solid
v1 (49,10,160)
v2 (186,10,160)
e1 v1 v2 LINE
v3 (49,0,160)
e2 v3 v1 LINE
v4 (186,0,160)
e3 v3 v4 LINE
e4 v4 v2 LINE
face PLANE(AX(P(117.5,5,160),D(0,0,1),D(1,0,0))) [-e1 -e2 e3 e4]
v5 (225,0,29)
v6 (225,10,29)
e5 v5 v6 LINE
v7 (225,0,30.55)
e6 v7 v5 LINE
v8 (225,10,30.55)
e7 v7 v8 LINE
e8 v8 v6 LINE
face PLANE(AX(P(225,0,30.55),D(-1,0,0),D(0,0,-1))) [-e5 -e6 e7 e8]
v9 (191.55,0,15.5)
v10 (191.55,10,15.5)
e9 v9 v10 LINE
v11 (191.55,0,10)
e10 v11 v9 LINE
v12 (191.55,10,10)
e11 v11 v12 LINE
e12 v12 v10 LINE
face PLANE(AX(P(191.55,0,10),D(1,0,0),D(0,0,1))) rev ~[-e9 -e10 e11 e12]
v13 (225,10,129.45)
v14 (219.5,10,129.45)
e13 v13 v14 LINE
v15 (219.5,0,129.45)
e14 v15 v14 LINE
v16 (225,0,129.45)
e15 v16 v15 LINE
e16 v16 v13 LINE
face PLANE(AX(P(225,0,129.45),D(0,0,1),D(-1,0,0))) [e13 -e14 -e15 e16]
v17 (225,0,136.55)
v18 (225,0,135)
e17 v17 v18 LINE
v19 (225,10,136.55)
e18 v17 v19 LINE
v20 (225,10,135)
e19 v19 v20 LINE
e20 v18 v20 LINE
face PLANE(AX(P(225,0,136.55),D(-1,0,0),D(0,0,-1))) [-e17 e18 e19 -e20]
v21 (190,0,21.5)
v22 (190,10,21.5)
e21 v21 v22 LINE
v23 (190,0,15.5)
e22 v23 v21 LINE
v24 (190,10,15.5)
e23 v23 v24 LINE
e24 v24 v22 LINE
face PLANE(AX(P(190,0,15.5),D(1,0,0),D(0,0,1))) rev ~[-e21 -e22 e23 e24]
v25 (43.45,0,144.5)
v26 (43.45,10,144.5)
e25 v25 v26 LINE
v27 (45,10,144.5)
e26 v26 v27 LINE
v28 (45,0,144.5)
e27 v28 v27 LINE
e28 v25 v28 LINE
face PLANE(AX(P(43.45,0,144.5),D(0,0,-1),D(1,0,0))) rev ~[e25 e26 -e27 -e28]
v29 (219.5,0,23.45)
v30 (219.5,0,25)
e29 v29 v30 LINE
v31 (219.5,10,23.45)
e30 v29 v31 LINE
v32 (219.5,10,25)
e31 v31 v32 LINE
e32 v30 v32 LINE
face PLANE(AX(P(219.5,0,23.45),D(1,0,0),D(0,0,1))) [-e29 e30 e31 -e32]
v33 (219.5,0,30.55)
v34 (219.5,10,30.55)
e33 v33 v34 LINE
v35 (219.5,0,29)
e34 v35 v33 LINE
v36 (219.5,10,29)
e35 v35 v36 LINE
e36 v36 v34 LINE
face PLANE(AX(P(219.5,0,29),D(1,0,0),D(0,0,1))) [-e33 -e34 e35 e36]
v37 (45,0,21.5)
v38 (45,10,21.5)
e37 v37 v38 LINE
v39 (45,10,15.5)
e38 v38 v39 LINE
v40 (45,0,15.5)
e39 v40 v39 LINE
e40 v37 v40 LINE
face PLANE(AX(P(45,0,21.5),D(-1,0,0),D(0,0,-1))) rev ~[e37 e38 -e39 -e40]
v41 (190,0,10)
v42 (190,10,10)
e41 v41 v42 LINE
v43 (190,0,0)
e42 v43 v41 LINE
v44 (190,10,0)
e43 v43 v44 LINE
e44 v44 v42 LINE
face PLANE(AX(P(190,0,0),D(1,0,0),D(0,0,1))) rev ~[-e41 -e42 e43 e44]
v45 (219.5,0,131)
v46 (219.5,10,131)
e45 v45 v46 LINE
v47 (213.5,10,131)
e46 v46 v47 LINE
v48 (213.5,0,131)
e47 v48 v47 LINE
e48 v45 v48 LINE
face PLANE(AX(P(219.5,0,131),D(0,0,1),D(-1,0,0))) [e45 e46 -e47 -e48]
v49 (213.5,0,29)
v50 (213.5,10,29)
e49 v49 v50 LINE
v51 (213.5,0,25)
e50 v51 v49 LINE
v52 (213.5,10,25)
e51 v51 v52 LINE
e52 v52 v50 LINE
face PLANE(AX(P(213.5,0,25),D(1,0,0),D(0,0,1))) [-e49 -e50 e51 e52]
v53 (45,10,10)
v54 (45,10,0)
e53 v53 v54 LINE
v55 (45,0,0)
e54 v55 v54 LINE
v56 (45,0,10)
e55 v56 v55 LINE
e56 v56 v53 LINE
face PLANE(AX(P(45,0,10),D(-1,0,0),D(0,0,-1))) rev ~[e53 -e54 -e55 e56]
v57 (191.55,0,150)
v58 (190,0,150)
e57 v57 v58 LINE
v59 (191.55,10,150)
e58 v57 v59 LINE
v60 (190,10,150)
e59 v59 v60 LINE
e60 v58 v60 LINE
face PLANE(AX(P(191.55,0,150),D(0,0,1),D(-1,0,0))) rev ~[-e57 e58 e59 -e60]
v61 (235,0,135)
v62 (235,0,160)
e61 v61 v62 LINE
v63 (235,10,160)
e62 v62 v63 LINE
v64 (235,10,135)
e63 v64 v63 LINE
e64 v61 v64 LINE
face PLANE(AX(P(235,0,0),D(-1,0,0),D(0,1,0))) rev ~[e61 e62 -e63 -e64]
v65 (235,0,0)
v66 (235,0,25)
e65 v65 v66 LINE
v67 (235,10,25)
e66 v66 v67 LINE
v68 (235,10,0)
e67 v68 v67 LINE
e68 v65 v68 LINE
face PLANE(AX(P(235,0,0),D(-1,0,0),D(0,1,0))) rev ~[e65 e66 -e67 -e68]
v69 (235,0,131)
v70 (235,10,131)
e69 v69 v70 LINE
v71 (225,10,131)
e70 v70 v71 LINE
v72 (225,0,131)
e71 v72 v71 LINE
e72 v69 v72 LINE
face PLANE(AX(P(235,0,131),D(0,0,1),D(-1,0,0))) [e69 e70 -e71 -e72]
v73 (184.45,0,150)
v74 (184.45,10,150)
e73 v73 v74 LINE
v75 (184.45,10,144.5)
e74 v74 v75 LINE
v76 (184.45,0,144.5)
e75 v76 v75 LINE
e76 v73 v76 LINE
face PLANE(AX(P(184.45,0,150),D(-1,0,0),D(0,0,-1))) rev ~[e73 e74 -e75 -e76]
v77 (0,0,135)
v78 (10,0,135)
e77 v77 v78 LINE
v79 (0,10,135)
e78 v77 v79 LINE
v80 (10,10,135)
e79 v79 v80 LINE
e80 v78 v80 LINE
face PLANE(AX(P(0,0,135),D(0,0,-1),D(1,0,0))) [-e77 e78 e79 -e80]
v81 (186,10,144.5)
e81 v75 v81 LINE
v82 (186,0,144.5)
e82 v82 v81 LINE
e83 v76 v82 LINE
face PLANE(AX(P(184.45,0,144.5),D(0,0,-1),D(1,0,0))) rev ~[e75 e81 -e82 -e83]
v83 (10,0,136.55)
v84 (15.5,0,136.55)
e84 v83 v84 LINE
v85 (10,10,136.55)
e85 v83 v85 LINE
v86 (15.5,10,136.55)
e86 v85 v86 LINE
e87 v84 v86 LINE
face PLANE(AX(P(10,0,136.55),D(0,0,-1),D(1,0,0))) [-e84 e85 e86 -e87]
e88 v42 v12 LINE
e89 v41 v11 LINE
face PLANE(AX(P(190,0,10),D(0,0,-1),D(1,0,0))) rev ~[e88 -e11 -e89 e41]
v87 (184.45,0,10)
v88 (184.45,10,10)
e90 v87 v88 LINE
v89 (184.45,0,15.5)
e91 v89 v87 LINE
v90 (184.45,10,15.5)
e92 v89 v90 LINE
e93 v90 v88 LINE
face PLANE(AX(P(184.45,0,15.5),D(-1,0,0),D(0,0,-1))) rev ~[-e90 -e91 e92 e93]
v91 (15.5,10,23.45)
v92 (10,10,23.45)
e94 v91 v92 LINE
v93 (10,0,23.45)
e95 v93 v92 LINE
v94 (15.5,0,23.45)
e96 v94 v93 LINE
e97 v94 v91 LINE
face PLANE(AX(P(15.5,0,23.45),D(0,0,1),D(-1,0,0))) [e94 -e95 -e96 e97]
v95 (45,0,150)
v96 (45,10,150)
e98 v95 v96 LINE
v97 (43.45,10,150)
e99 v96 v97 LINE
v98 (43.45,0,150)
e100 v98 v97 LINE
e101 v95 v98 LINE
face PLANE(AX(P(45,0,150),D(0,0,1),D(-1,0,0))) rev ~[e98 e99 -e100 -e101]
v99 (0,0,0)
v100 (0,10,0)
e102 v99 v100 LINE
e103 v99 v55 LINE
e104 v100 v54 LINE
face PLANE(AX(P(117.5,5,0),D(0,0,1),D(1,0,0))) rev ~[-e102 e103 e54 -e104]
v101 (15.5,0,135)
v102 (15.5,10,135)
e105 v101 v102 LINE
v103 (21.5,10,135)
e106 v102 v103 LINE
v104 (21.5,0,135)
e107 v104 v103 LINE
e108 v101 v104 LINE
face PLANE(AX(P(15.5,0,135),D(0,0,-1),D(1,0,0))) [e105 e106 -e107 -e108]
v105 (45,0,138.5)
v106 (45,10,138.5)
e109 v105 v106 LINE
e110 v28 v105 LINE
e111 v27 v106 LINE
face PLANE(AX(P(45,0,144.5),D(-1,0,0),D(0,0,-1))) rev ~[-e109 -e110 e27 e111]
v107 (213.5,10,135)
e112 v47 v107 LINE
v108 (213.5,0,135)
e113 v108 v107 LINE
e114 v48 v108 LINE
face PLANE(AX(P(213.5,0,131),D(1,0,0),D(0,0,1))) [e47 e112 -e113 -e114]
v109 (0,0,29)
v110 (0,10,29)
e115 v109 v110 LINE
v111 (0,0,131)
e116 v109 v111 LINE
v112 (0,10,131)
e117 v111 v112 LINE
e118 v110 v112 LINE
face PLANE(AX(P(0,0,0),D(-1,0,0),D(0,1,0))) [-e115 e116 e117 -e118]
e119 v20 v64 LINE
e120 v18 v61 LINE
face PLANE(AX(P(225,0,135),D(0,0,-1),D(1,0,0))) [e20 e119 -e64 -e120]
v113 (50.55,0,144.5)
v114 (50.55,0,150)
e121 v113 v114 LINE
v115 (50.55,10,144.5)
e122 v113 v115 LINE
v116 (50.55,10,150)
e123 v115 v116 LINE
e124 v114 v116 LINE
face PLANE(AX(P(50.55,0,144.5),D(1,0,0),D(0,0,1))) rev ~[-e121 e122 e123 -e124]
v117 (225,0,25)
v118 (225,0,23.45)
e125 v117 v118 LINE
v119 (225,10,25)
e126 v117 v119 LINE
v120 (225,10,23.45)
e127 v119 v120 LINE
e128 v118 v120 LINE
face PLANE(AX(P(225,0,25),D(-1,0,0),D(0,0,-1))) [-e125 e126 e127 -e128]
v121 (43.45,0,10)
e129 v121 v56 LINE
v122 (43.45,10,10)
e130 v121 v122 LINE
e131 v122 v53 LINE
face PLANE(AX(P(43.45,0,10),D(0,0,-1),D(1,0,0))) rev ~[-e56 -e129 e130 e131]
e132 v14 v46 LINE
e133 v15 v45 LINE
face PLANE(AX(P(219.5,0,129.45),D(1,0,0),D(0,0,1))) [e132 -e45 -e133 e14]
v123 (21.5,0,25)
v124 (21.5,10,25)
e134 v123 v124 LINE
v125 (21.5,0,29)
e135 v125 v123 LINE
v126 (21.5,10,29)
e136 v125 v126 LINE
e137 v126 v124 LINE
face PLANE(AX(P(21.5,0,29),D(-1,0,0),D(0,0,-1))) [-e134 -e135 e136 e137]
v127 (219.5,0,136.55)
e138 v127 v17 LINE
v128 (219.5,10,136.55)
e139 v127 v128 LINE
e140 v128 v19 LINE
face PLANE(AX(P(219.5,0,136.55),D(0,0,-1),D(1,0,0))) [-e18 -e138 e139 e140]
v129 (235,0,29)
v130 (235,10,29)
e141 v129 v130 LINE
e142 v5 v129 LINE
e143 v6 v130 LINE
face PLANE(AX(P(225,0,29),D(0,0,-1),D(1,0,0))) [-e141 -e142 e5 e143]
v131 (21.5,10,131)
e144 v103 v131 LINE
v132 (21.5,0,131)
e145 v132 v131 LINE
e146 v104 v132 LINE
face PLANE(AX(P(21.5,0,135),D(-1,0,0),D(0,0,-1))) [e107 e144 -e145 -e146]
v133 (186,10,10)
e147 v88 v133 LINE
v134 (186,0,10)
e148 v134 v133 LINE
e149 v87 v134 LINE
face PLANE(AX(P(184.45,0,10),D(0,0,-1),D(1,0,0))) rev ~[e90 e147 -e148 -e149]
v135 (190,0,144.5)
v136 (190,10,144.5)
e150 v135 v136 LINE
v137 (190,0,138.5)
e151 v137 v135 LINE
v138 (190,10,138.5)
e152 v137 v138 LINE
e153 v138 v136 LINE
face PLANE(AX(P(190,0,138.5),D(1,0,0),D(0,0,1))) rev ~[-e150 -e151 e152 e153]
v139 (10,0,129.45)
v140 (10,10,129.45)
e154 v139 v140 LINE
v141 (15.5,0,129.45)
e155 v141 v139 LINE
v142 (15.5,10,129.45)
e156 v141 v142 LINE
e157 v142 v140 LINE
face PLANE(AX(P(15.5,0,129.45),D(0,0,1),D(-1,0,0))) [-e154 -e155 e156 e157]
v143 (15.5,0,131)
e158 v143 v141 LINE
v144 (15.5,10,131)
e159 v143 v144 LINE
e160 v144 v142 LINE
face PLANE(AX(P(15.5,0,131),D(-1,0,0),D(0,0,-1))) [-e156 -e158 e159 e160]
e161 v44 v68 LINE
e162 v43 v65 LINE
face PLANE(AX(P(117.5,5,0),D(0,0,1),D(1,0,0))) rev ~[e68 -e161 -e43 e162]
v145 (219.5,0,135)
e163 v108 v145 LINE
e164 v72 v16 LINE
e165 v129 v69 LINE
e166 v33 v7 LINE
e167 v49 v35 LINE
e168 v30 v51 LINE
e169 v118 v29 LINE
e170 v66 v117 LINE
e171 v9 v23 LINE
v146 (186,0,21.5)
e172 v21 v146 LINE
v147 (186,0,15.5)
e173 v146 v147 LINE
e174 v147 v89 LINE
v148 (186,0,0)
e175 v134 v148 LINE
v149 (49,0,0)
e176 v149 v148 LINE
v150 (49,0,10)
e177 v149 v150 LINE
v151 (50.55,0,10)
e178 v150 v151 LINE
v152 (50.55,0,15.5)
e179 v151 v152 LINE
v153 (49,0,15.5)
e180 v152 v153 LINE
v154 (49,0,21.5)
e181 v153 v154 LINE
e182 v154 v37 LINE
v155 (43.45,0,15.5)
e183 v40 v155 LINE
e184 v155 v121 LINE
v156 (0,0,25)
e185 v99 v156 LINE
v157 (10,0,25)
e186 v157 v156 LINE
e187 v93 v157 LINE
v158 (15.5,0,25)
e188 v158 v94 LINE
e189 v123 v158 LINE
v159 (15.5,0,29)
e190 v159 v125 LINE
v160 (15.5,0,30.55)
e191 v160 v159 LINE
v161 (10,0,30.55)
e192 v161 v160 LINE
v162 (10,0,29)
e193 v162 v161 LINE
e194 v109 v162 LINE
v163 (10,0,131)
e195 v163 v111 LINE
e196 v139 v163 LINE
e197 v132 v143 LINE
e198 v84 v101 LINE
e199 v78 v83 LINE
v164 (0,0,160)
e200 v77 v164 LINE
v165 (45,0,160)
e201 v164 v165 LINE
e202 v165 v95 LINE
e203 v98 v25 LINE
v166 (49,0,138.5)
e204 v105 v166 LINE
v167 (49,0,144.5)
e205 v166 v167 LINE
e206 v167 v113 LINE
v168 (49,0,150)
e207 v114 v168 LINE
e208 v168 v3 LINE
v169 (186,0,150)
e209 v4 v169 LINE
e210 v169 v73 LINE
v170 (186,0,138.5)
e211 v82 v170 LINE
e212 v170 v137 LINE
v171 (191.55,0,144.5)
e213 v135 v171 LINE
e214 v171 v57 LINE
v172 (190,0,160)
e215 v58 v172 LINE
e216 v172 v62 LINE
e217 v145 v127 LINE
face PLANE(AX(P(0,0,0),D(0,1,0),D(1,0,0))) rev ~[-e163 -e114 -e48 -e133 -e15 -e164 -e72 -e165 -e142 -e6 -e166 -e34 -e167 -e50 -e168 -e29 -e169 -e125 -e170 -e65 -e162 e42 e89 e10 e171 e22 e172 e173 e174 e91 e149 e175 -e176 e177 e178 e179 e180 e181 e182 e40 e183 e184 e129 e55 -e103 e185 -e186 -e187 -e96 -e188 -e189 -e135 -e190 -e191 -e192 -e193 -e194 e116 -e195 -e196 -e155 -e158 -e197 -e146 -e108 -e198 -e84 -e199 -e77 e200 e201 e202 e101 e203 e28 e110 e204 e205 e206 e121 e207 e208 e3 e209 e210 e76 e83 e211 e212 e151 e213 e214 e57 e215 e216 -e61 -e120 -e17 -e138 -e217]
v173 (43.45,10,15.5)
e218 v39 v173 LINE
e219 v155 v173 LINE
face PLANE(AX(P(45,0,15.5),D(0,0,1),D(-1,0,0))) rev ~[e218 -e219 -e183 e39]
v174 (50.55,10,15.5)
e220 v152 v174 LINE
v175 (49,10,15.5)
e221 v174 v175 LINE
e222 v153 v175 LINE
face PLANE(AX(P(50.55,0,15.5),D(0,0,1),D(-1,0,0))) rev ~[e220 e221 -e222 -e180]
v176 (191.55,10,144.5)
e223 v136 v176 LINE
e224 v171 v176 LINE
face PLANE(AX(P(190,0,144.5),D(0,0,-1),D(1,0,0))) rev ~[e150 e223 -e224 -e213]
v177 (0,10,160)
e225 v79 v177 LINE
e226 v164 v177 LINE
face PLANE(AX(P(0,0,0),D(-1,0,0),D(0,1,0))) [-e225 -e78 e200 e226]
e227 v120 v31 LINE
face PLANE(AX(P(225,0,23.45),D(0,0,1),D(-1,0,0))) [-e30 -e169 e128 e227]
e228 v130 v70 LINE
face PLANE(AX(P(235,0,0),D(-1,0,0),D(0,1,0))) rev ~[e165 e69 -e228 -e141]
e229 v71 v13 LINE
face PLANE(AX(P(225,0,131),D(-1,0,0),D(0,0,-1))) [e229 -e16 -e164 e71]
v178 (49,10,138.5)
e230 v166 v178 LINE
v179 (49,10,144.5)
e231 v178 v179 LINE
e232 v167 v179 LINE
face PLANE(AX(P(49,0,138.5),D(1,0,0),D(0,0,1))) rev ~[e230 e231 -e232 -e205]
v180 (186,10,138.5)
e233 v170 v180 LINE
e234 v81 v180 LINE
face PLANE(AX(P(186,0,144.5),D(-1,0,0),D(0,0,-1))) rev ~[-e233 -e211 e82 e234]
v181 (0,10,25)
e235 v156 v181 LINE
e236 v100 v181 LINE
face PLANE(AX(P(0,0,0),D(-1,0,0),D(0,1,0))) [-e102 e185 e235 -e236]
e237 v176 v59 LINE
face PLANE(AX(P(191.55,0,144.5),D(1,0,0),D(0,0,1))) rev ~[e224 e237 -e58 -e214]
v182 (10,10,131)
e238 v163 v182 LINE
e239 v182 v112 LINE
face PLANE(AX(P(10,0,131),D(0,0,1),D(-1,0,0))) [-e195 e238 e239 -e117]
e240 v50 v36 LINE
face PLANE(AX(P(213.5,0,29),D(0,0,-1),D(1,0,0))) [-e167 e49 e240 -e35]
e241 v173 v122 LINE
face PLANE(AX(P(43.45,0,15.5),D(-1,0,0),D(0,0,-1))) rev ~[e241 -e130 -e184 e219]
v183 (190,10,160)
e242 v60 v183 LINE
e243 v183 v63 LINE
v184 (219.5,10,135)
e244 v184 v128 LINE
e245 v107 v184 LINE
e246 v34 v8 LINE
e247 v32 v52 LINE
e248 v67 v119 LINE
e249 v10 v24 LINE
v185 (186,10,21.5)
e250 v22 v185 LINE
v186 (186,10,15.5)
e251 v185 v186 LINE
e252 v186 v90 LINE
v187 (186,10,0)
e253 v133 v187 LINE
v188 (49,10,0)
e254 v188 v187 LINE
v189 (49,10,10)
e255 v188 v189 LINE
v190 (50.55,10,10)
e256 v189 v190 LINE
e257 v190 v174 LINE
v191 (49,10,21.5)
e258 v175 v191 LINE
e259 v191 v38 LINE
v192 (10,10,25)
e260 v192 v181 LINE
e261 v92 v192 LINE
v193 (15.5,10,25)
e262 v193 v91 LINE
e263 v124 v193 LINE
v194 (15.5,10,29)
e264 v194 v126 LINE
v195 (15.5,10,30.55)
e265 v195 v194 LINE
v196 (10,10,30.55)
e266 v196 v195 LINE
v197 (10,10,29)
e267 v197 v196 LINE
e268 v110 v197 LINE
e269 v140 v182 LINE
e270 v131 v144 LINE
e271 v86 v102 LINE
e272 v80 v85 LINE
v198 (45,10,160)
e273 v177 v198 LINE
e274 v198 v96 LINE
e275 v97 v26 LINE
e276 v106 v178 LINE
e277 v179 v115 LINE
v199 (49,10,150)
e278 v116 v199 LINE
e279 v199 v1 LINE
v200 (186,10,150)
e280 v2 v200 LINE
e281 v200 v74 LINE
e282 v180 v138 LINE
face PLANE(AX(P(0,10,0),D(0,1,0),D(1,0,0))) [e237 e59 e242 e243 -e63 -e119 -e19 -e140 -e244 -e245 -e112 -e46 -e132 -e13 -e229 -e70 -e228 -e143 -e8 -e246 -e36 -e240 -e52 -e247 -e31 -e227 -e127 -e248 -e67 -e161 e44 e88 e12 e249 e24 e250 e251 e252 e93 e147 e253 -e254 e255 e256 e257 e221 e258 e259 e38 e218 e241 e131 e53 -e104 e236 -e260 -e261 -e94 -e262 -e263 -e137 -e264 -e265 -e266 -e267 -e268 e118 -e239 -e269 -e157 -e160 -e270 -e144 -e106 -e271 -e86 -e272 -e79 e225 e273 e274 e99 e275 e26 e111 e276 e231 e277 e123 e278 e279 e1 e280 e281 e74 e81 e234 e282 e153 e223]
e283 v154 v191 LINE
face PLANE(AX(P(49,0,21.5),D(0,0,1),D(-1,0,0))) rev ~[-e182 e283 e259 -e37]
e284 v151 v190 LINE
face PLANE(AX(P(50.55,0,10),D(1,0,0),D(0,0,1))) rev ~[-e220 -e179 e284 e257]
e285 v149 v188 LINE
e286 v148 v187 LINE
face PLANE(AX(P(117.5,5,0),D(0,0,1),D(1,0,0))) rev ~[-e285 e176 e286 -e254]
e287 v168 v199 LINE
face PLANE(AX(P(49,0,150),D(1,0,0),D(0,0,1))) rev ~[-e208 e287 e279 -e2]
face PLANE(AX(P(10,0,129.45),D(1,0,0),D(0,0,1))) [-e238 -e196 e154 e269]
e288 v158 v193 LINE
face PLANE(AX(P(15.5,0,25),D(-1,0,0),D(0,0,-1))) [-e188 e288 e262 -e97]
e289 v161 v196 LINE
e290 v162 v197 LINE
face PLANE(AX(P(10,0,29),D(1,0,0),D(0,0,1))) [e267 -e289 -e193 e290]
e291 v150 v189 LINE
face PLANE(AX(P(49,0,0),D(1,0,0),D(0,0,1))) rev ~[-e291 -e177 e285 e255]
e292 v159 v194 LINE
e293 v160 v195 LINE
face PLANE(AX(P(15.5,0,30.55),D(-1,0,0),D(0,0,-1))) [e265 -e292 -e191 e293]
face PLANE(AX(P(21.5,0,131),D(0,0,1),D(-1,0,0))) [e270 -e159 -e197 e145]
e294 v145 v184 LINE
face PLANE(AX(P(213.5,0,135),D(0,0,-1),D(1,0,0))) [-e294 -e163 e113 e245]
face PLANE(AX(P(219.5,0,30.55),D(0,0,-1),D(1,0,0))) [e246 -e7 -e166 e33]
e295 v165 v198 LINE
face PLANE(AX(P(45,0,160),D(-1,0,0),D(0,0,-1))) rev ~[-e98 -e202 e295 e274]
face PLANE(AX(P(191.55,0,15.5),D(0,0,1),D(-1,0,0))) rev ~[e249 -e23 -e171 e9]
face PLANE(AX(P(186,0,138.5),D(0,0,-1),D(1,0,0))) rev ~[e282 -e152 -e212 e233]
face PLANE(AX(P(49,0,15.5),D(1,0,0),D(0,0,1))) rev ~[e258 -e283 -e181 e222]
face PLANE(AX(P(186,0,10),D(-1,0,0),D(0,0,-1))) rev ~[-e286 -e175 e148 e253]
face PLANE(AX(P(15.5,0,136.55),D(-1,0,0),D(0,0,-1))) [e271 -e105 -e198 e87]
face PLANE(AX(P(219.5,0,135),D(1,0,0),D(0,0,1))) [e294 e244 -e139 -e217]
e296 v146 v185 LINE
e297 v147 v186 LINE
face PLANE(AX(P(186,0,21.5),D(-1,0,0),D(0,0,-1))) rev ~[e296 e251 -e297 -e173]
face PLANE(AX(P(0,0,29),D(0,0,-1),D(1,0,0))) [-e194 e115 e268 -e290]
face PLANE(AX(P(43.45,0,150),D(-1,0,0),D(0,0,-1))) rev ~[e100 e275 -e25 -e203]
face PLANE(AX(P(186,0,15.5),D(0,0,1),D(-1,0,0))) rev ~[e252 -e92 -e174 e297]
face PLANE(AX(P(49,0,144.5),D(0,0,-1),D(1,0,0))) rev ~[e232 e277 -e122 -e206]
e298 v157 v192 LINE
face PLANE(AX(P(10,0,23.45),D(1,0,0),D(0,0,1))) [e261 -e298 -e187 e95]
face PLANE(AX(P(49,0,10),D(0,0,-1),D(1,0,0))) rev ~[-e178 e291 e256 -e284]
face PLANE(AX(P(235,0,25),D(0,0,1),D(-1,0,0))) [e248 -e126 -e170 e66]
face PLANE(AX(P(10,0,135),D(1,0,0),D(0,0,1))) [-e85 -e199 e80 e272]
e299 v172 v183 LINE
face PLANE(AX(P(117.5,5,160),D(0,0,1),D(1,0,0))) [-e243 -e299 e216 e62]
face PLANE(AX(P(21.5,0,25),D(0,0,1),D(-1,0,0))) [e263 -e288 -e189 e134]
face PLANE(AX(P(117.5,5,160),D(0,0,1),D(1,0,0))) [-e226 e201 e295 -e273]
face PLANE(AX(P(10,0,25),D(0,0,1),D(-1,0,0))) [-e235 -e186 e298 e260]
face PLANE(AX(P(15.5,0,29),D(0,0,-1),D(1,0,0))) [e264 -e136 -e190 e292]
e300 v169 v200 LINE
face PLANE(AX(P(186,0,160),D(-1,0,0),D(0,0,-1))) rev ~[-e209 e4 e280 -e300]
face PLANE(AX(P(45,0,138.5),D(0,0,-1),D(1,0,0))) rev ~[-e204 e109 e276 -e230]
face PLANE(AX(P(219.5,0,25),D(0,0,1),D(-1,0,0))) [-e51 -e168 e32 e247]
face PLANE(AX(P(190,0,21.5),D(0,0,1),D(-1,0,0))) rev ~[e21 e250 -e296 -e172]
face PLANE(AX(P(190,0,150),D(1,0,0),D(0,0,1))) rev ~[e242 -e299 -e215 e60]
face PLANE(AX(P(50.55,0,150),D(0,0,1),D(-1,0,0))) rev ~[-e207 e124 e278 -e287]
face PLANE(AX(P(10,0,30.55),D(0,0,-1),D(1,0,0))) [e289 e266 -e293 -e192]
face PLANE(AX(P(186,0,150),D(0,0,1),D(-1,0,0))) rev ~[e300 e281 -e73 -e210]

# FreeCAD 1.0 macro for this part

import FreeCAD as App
import Part
import Sketcher

doc = App.newDocument("Part")
body = doc.addObject("PartDesign::Body", "Body")

sketch1 = body.newObject("Sketcher::SketchObject", "Sketch")
sketch1.AttachmentSupport = (doc.getObject("XY_Plane"), [""])
sketch1.MapMode = "FlatFace"
sketch1.addGeometry(Part.LineSegment(App.Vector(0, 10, 0), App.Vector(0, 0, 0)), False)
sketch1.addGeometry(Part.LineSegment(App.Vector(0, 0, 0), App.Vector(235, 0, 0)), False)
sketch1.addGeometry(Part.LineSegment(App.Vector(235, 0, 0), App.Vector(235, 10, 0)), False)
sketch1.addGeometry(Part.LineSegment(App.Vector(235, 10, 0), App.Vector(0, 10, 0)), False)
sketch1.addConstraint(Sketcher.Constraint("Coincident", 0, 2, 1, 1))
sketch1.addConstraint(Sketcher.Constraint("Coincident", 1, 2, 2, 1))
sketch1.addConstraint(Sketcher.Constraint("Coincident", 2, 2, 3, 1))
sketch1.addConstraint(Sketcher.Constraint("Coincident", 3, 2, 0, 1))
sketch1.addConstraint(Sketcher.Constraint("Vertical", 0))
sketch1.addConstraint(Sketcher.Constraint("Horizontal", 1))
sketch1.addConstraint(Sketcher.Constraint("Vertical", 2))
sketch1.addConstraint(Sketcher.Constraint("Horizontal", 3))
sketch1.addConstraint(Sketcher.Constraint("Coincident", 0, 2, -1, 1))
sketch1.addConstraint(Sketcher.Constraint("DistanceX", 1, 1, 1, 2, 235.0))
sketch1.addConstraint(Sketcher.Constraint("DistanceY", 0, 2, 0, 1, 10.0))
pad1 = body.newObject("PartDesign::Pad", "Pad")
pad1.Profile = sketch1
pad1.Length = 160

sketch2 = body.newObject("Sketcher::SketchObject", "Sketch001")
sketch2.AttachmentSupport = (doc.getObject("XZ_Plane"), [""])
sketch2.MapMode = "FlatFace"
sketch2.addGeometry(Part.LineSegment(App.Vector(10, 135, 0), App.Vector(0, 135, 0)), False)
sketch2.addGeometry(Part.LineSegment(App.Vector(0, 135, 0), App.Vector(0, 131, 0)), False)
sketch2.addGeometry(Part.LineSegment(App.Vector(0, 131, 0), App.Vector(10, 131, 0)), False)
sketch2.addGeometry(Part.LineSegment(App.Vector(10, 131, 0), App.Vector(10, 129.45, 0)), False)
sketch2.addGeometry(Part.LineSegment(App.Vector(10, 129.45, 0), App.Vector(15.5, 129.45, 0)), False)
sketch2.addGeometry(Part.LineSegment(App.Vector(15.5, 129.45, 0), App.Vector(15.5, 131, 0)), False)
sketch2.addGeometry(Part.LineSegment(App.Vector(15.5, 131, 0), App.Vector(21.5, 131, 0)), False)
sketch2.addGeometry(Part.LineSegment(App.Vector(21.5, 131, 0), App.Vector(21.5, 135, 0)), False)
sketch2.addGeometry(Part.LineSegment(App.Vector(21.5, 135, 0), App.Vector(15.5, 135, 0)), False)
sketch2.addGeometry(Part.LineSegment(App.Vector(15.5, 135, 0), App.Vector(15.5, 136.55, 0)), False)
sketch2.addGeometry(Part.LineSegment(App.Vector(15.5, 136.55, 0), App.Vector(10, 136.55, 0)), False)
sketch2.addGeometry(Part.LineSegment(App.Vector(10, 136.55, 0), App.Vector(10, 135, 0)), False)
sketch2.addGeometry(Part.LineSegment(App.Vector(10, 29, 0), App.Vector(0, 29, 0)), False)
sketch2.addGeometry(Part.LineSegment(App.Vector(0, 29, 0), App.Vector(0, 25, 0)), False)
sketch2.addGeometry(Part.LineSegment(App.Vector(0, 25, 0), App.Vector(10, 25, 0)), False)
sketch2.addGeometry(Part.LineSegment(App.Vector(10, 25, 0), App.Vector(10, 23.45, 0)), False)
sketch2.addGeometry(Part.LineSegment(App.Vector(10, 23.45, 0), App.Vector(15.5, 23.45, 0)), False)
sketch2.addGeometry(Part.LineSegment(App.Vector(15.5, 23.45, 0), App.Vector(15.5, 25, 0)), False)
sketch2.addGeometry(Part.LineSegment(App.Vector(15.5, 25, 0), App.Vector(21.5, 25, 0)), False)
sketch2.addGeometry(Part.LineSegment(App.Vector(21.5, 25, 0), App.Vector(21.5, 29, 0)), False)
sketch2.addGeometry(Part.LineSegment(App.Vector(21.5, 29, 0), App.Vector(15.5, 29, 0)), False)
sketch2.addGeometry(Part.LineSegment(App.Vector(15.5, 29, 0), App.Vector(15.5, 30.55, 0)), False)
sketch2.addGeometry(Part.LineSegment(App.Vector(15.5, 30.55, 0), App.Vector(10, 30.55, 0)), False)
sketch2.addGeometry(Part.LineSegment(App.Vector(10, 30.55, 0), App.Vector(10, 29, 0)), False)
sketch2.addGeometry(Part.LineSegment(App.Vector(225, 25, 0), App.Vector(235, 25, 0)), False)
sketch2.addGeometry(Part.LineSegment(App.Vector(235, 25, 0), App.Vector(235, 29, 0)), False)
sketch2.addGeometry(Part.LineSegment(App.Vector(235, 29, 0), App.Vector(225, 29, 0)), False)
sketch2.addGeometry(Part.LineSegment(App.Vector(225, 29, 0), App.Vector(225, 30.55, 0)), False)
sketch2.addGeometry(Part.LineSegment(App.Vector(225, 30.55, 0), App.Vector(219.5, 30.55, 0)), False)
sketch2.addGeometry(Part.LineSegment(App.Vector(219.5, 30.55, 0), App.Vector(219.5, 29, 0)), False)
sketch2.addGeometry(Part.LineSegment(App.Vector(219.5, 29, 0), App.Vector(213.5, 29, 0)), False)
sketch2.addGeometry(Part.LineSegment(App.Vector(213.5, 29, 0), App.Vector(213.5, 25, 0)), False)
sketch2.addGeometry(Part.LineSegment(App.Vector(213.5, 25, 0), App.Vector(219.5, 25, 0)), False)
sketch2.addGeometry(Part.LineSegment(App.Vector(219.5, 25, 0), App.Vector(219.5, 23.45, 0)), False)
sketch2.addGeometry(Part.LineSegment(App.Vector(219.5, 23.45, 0), App.Vector(225, 23.45, 0)), False)
sketch2.addGeometry(Part.LineSegment(App.Vector(225, 23.45, 0), App.Vector(225, 25, 0)), False)
sketch2.addGeometry(Part.LineSegment(App.Vector(225, 131, 0), App.Vector(235, 131, 0)), False)
sketch2.addGeometry(Part.LineSegment(App.Vector(235, 131, 0), App.Vector(235, 135, 0)), False)
sketch2.addGeometry(Part.LineSegment(App.Vector(235, 135, 0), App.Vector(225, 135, 0)), False)
sketch2.addGeometry(Part.LineSegment(App.Vector(225, 135, 0), App.Vector(225, 136.55, 0)), False)
sketch2.addGeometry(Part.LineSegment(App.Vector(225, 136.55, 0), App.Vector(219.5, 136.55, 0)), False)
sketch2.addGeometry(Part.LineSegment(App.Vector(219.5, 136.55, 0), App.Vector(219.5, 135, 0)), False)
sketch2.addGeometry(Part.LineSegment(App.Vector(219.5, 135, 0), App.Vector(213.5, 135, 0)), False)
sketch2.addGeometry(Part.LineSegment(App.Vector(213.5, 135, 0), App.Vector(213.5, 131, 0)), False)
sketch2.addGeometry(Part.LineSegment(App.Vector(213.5, 131, 0), App.Vector(219.5, 131, 0)), False)
sketch2.addGeometry(Part.LineSegment(App.Vector(219.5, 131, 0), App.Vector(219.5, 129.45, 0)), False)
sketch2.addGeometry(Part.LineSegment(App.Vector(219.5, 129.45, 0), App.Vector(225, 129.45, 0)), False)
sketch2.addGeometry(Part.LineSegment(App.Vector(225, 129.45, 0), App.Vector(225, 131, 0)), False)
sketch2.addConstraint(Sketcher.Constraint("Coincident", 0, 2, 1, 1))
sketch2.addConstraint(Sketcher.Constraint("Coincident", 1, 2, 2, 1))
sketch2.addConstraint(Sketcher.Constraint("Coincident", 2, 2, 3, 1))
sketch2.addConstraint(Sketcher.Constraint("Coincident", 3, 2, 4, 1))
sketch2.addConstraint(Sketcher.Constraint("Coincident", 4, 2, 5, 1))
sketch2.addConstraint(Sketcher.Constraint("Coincident", 5, 2, 6, 1))
sketch2.addConstraint(Sketcher.Constraint("Coincident", 6, 2, 7, 1))
sketch2.addConstraint(Sketcher.Constraint("Coincident", 7, 2, 8, 1))
sketch2.addConstraint(Sketcher.Constraint("Coincident", 8, 2, 9, 1))
sketch2.addConstraint(Sketcher.Constraint("Coincident", 9, 2, 10, 1))
sketch2.addConstraint(Sketcher.Constraint("Coincident", 10, 2, 11, 1))
sketch2.addConstraint(Sketcher.Constraint("Coincident", 11, 2, 0, 1))
sketch2.addConstraint(Sketcher.Constraint("Coincident", 12, 2, 13, 1))
sketch2.addConstraint(Sketcher.Constraint("Coincident", 13, 2, 14, 1))
sketch2.addConstraint(Sketcher.Constraint("Coincident", 14, 2, 15, 1))
sketch2.addConstraint(Sketcher.Constraint("Coincident", 15, 2, 16, 1))
sketch2.addConstraint(Sketcher.Constraint("Coincident", 16, 2, 17, 1))
sketch2.addConstraint(Sketcher.Constraint("Coincident", 17, 2, 18, 1))
sketch2.addConstraint(Sketcher.Constraint("Coincident", 18, 2, 19, 1))
sketch2.addConstraint(Sketcher.Constraint("Coincident", 19, 2, 20, 1))
sketch2.addConstraint(Sketcher.Constraint("Coincident", 20, 2, 21, 1))
sketch2.addConstraint(Sketcher.Constraint("Coincident", 21, 2, 22, 1))
sketch2.addConstraint(Sketcher.Constraint("Coincident", 22, 2, 23, 1))
sketch2.addConstraint(Sketcher.Constraint("Coincident", 23, 2, 12, 1))
sketch2.addConstraint(Sketcher.Constraint("Coincident", 24, 2, 25, 1))
sketch2.addConstraint(Sketcher.Constraint("Coincident", 25, 2, 26, 1))
sketch2.addConstraint(Sketcher.Constraint("Coincident", 26, 2, 27, 1))
sketch2.addConstraint(Sketcher.Constraint("Coincident", 27, 2, 28, 1))
sketch2.addConstraint(Sketcher.Constraint("Coincident", 28, 2, 29, 1))
sketch2.addConstraint(Sketcher.Constraint("Coincident", 29, 2, 30, 1))
sketch2.addConstraint(Sketcher.Constraint("Coincident", 30, 2, 31, 1))
sketch2.addConstraint(Sketcher.Constraint("Coincident", 31, 2, 32, 1))
sketch2.addConstraint(Sketcher.Constraint("Coincident", 32, 2, 33, 1))
sketch2.addConstraint(Sketcher.Constraint("Coincident", 33, 2, 34, 1))
sketch2.addConstraint(Sketcher.Constraint("Coincident", 34, 2, 35, 1))
sketch2.addConstraint(Sketcher.Constraint("Coincident", 35, 2, 24, 1))
sketch2.addConstraint(Sketcher.Constraint("Coincident", 36, 2, 37, 1))
sketch2.addConstraint(Sketcher.Constraint("Coincident", 37, 2, 38, 1))
sketch2.addConstraint(Sketcher.Constraint("Coincident", 38, 2, 39, 1))
sketch2.addConstraint(Sketcher.Constraint("Coincident", 39, 2, 40, 1))
sketch2.addConstraint(Sketcher.Constraint("Coincident", 40, 2, 41, 1))
sketch2.addConstraint(Sketcher.Constraint("Coincident", 41, 2, 42, 1))
sketch2.addConstraint(Sketcher.Constraint("Coincident", 42, 2, 43, 1))
sketch2.addConstraint(Sketcher.Constraint("Coincident", 43, 2, 44, 1))
sketch2.addConstraint(Sketcher.Constraint("Coincident", 44, 2, 45, 1))
sketch2.addConstraint(Sketcher.Constraint("Coincident", 45, 2, 46, 1))
sketch2.addConstraint(Sketcher.Constraint("Coincident", 46, 2, 47, 1))
sketch2.addConstraint(Sketcher.Constraint("Coincident", 47, 2, 36, 1))
sketch2.addConstraint(Sketcher.Constraint("Horizontal", 0))
sketch2.addConstraint(Sketcher.Constraint("Vertical", 1))
sketch2.addConstraint(Sketcher.Constraint("Horizontal", 2))
sketch2.addConstraint(Sketcher.Constraint("Vertical", 3))
sketch2.addConstraint(Sketcher.Constraint("Horizontal", 4))
sketch2.addConstraint(Sketcher.Constraint("Vertical", 5))
sketch2.addConstraint(Sketcher.Constraint("Horizontal", 6))
sketch2.addConstraint(Sketcher.Constraint("Vertical", 7))
sketch2.addConstraint(Sketcher.Constraint("Horizontal", 8))
sketch2.addConstraint(Sketcher.Constraint("Vertical", 9))
sketch2.addConstraint(Sketcher.Constraint("Horizontal", 10))
sketch2.addConstraint(Sketcher.Constraint("Vertical", 11))
sketch2.addConstraint(Sketcher.Constraint("Horizontal", 12))
sketch2.addConstraint(Sketcher.Constraint("Vertical", 13))
sketch2.addConstraint(Sketcher.Constraint("Horizontal", 14))
sketch2.addConstraint(Sketcher.Constraint("Vertical", 15))
sketch2.addConstraint(Sketcher.Constraint("Horizontal", 16))
sketch2.addConstraint(Sketcher.Constraint("Vertical", 17))
sketch2.addConstraint(Sketcher.Constraint("Horizontal", 18))
sketch2.addConstraint(Sketcher.Constraint("Vertical", 19))
sketch2.addConstraint(Sketcher.Constraint("Horizontal", 20))
sketch2.addConstraint(Sketcher.Constraint("Vertical", 21))
sketch2.addConstraint(Sketcher.Constraint("Horizontal", 22))
sketch2.addConstraint(Sketcher.Constraint("Vertical", 23))
sketch2.addConstraint(Sketcher.Constraint("Horizontal", 24))
sketch2.addConstraint(Sketcher.Constraint("Vertical", 25))
sketch2.addConstraint(Sketcher.Constraint("Horizontal", 26))
sketch2.addConstraint(Sketcher.Constraint("Vertical", 27))
sketch2.addConstraint(Sketcher.Constraint("Horizontal", 28))
sketch2.addConstraint(Sketcher.Constraint("Vertical", 29))
sketch2.addConstraint(Sketcher.Constraint("Horizontal", 30))
sketch2.addConstraint(Sketcher.Constraint("Vertical", 31))
sketch2.addConstraint(Sketcher.Constraint("Horizontal", 32))
sketch2.addConstraint(Sketcher.Constraint("Vertical", 33))
sketch2.addConstraint(Sketcher.Constraint("Horizontal", 34))
sketch2.addConstraint(Sketcher.Constraint("Vertical", 35))
sketch2.addConstraint(Sketcher.Constraint("Horizontal", 36))
sketch2.addConstraint(Sketcher.Constraint("Vertical", 37))
sketch2.addConstraint(Sketcher.Constraint("Horizontal", 38))
sketch2.addConstraint(Sketcher.Constraint("Vertical", 39))
sketch2.addConstraint(Sketcher.Constraint("Horizontal", 40))
sketch2.addConstraint(Sketcher.Constraint("Vertical", 41))
sketch2.addConstraint(Sketcher.Constraint("Horizontal", 42))
sketch2.addConstraint(Sketcher.Constraint("Vertical", 43))
sketch2.addConstraint(Sketcher.Constraint("Horizontal", 44))
sketch2.addConstraint(Sketcher.Constraint("Vertical", 45))
sketch2.addConstraint(Sketcher.Constraint("Horizontal", 46))
sketch2.addConstraint(Sketcher.Constraint("Vertical", 47))
sketch2.addConstraint(Sketcher.Constraint("PointOnObject", 0, 2, -2))
sketch2.addConstraint(Sketcher.Constraint("PointOnObject", 12, 2, -2))
sketch2.addConstraint(Sketcher.Constraint("Horizontal", 2, 2, 5, 2))
sketch2.addConstraint(Sketcher.Constraint("Horizontal", 0, 2, 7, 2))
sketch2.addConstraint(Sketcher.Constraint("Horizontal", 14, 2, 17, 2))
sketch2.addConstraint(Sketcher.Constraint("Horizontal", 12, 2, 19, 2))
sketch2.addConstraint(Sketcher.Constraint("Horizontal", 18, 2, 24, 2))
sketch2.addConstraint(Sketcher.Constraint("Horizontal", 23, 2, 25, 2))
sketch2.addConstraint(Sketcher.Constraint("Horizontal", 22, 2, 27, 2))
sketch2.addConstraint(Sketcher.Constraint("Horizontal", 26, 2, 29, 2))
sketch2.addConstraint(Sketcher.Constraint("Horizontal", 24, 2, 31, 2))
sketch2.addConstraint(Sketcher.Constraint("Horizontal", 16, 2, 33, 2))
sketch2.addConstraint(Sketcher.Constraint("Horizontal", 6, 2, 36, 2))
sketch2.addConstraint(Sketcher.Constraint("Horizontal", 11, 2, 37, 2))
sketch2.addConstraint(Sketcher.Constraint("Horizontal", 10, 2, 39, 2))
sketch2.addConstraint(Sketcher.Constraint("Horizontal", 38, 2, 41, 2))
sketch2.addConstraint(Sketcher.Constraint("Horizontal", 36, 2, 43, 2))
sketch2.addConstraint(Sketcher.Constraint("Horizontal", 4, 2, 45, 2))
sketch2.addConstraint(Sketcher.Constraint("Vertical", 5, 2, 8, 2))
sketch2.addConstraint(Sketcher.Constraint("Vertical", 3, 2, 10, 2))
sketch2.addConstraint(Sketcher.Constraint("Vertical", 11, 2, 14, 2))
sketch2.addConstraint(Sketcher.Constraint("Vertical", 9, 2, 16, 2))
sketch2.addConstraint(Sketcher.Constraint("Vertical", 7, 2, 18, 2))
sketch2.addConstraint(Sketcher.Constraint("Vertical", 17, 2, 20, 2))
sketch2.addConstraint(Sketcher.Constraint("Vertical", 15, 2, 22, 2))
sketch2.addConstraint(Sketcher.Constraint("Vertical", 29, 2, 32, 2))
sketch2.addConstraint(Sketcher.Constraint("Vertical", 27, 2, 34, 2))
sketch2.addConstraint(Sketcher.Constraint("Vertical", 25, 2, 36, 2))
sketch2.addConstraint(Sketcher.Constraint("Vertical", 35, 2, 38, 2))
sketch2.addConstraint(Sketcher.Constraint("Vertical", 33, 2, 40, 2))
sketch2.addConstraint(Sketcher.Constraint("Vertical", 31, 2, 42, 2))
sketch2.addConstraint(Sketcher.Constraint("Vertical", 41, 2, 44, 2))
sketch2.addConstraint(Sketcher.Constraint("Vertical", 39, 2, 46, 2))
sketch2.addConstraint(Sketcher.Constraint("Equal", 14, 24))
sketch2.addConstraint(Sketcher.Constraint("Equal", 22, 28))
sketch2.addConstraint(Sketcher.Constraint("Equal", 20, 30))
sketch2.addConstraint(Sketcher.Constraint("Equal", 5, 9))
sketch2.addConstraint(Sketcher.Constraint("Equal", 7, 13))
sketch2.addConstraint(Sketcher.Constraint("Equal", 11, 15))
sketch2.addConstraint(Sketcher.Constraint("Equal", 17, 21))
sketch2.addConstraint(Sketcher.Constraint("DistanceX", 0, 2, 0, 1, 10.0))
sketch2.addConstraint(Sketcher.Constraint("DistanceX", 6, 1, 6, 2, 6.0))
sketch2.addConstraint(Sketcher.Constraint("DistanceY", 1, 2, 1, 1, 4.0))
sketch2.addConstraint(Sketcher.Constraint("DistanceX", 4, 1, 4, 2, 5.5))
sketch2.addConstraint(Sketcher.Constraint("DistanceY", -1, 1, 0, 2, 135.0))
sketch2.addConstraint(Sketcher.Constraint("DistanceY", -1, 1, 12, 2, 29.0))
sketch2.addConstraint(Sketcher.Constraint("DistanceX", -1, 1, 24, 2, 235.0))
sketch2.addConstraint(Sketcher.Constraint("DistanceY", 3, 2, 3, 1, 1.55))
pocket1 = body.newObject("PartDesign::Pocket", "Pocket")
pocket1.Profile = sketch2
pocket1.Length = 10

sketch3 = body.newObject("Sketcher::SketchObject", "Sketch002")
sketch3.AttachmentSupport = (doc.getObject("XZ_Plane"), [""])
sketch3.MapMode = "FlatFace"
sketch3.addGeometry(Part.LineSegment(App.Vector(45, 160, 0), App.Vector(45, 150, 0)), False)
sketch3.addGeometry(Part.LineSegment(App.Vector(45, 150, 0), App.Vector(43.45, 150, 0)), False)
sketch3.addGeometry(Part.LineSegment(App.Vector(43.45, 150, 0), App.Vector(43.45, 144.5, 0)), False)
sketch3.addGeometry(Part.LineSegment(App.Vector(43.45, 144.5, 0), App.Vector(45, 144.5, 0)), False)
sketch3.addGeometry(Part.LineSegment(App.Vector(45, 144.5, 0), App.Vector(45, 138.5, 0)), False)
sketch3.addGeometry(Part.LineSegment(App.Vector(45, 138.5, 0), App.Vector(49, 138.5, 0)), False)
sketch3.addGeometry(Part.LineSegment(App.Vector(49, 138.5, 0), App.Vector(49, 144.5, 0)), False)
sketch3.addGeometry(Part.LineSegment(App.Vector(49, 144.5, 0), App.Vector(50.55, 144.5, 0)), False)
sketch3.addGeometry(Part.LineSegment(App.Vector(50.55, 144.5, 0), App.Vector(50.55, 150, 0)), False)
sketch3.addGeometry(Part.LineSegment(App.Vector(50.55, 150, 0), App.Vector(49, 150, 0)), False)
sketch3.addGeometry(Part.LineSegment(App.Vector(49, 150, 0), App.Vector(49, 160, 0)), False)
sketch3.addGeometry(Part.LineSegment(App.Vector(49, 160, 0), App.Vector(45, 160, 0)), False)
sketch3.addGeometry(Part.LineSegment(App.Vector(186, 160, 0), App.Vector(186, 150, 0)), False)
sketch3.addGeometry(Part.LineSegment(App.Vector(186, 150, 0), App.Vector(184.45, 150, 0)), False)
sketch3.addGeometry(Part.LineSegment(App.Vector(184.45, 150, 0), App.Vector(184.45, 144.5, 0)), False)
sketch3.addGeometry(Part.LineSegment(App.Vector(184.45, 144.5, 0), App.Vector(186, 144.5, 0)), False)
sketch3.addGeometry(Part.LineSegment(App.Vector(186, 144.5, 0), App.Vector(186, 138.5, 0)), False)
sketch3.addGeometry(Part.LineSegment(App.Vector(186, 138.5, 0), App.Vector(190, 138.5, 0)), False)
sketch3.addGeometry(Part.LineSegment(App.Vector(190, 138.5, 0), App.Vector(190, 144.5, 0)), False)
sketch3.addGeometry(Part.LineSegment(App.Vector(190, 144.5, 0), App.Vector(191.55, 144.5, 0)), False)
sketch3.addGeometry(Part.LineSegment(App.Vector(191.55, 144.5, 0), App.Vector(191.55, 150, 0)), False)
sketch3.addGeometry(Part.LineSegment(App.Vector(191.55, 150, 0), App.Vector(190, 150, 0)), False)
sketch3.addGeometry(Part.LineSegment(App.Vector(190, 150, 0), App.Vector(190, 160, 0)), False)
sketch3.addGeometry(Part.LineSegment(App.Vector(190, 160, 0), App.Vector(186, 160, 0)), False)
sketch3.addGeometry(Part.LineSegment(App.Vector(190, 0, 0), App.Vector(190, 10, 0)), False)
sketch3.addGeometry(Part.LineSegment(App.Vector(190, 10, 0), App.Vector(191.55, 10, 0)), False)
sketch3.addGeometry(Part.LineSegment(App.Vector(191.55, 10, 0), App.Vector(191.55, 15.5, 0)), False)
sketch3.addGeometry(Part.LineSegment(App.Vector(191.55, 15.5, 0), App.Vector(190, 15.5, 0)), False)
sketch3.addGeometry(Part.LineSegment(App.Vector(190, 15.5, 0), App.Vector(190, 21.5, 0)), False)
sketch3.addGeometry(Part.LineSegment(App.Vector(190, 21.5, 0), App.Vector(186, 21.5, 0)), False)
sketch3.addGeometry(Part.LineSegment(App.Vector(186, 21.5, 0), App.Vector(186, 15.5, 0)), False)
sketch3.addGeometry(Part.LineSegment(App.Vector(186, 15.5, 0), App.Vector(184.45, 15.5, 0)), False)
sketch3.addGeometry(Part.LineSegment(App.Vector(184.45, 15.5, 0), App.Vector(184.45, 10, 0)), False)
sketch3.addGeometry(Part.LineSegment(App.Vector(184.45, 10, 0), App.Vector(186, 10, 0)), False)
sketch3.addGeometry(Part.LineSegment(App.Vector(186, 10, 0), App.Vector(186, 0, 0)), False)
sketch3.addGeometry(Part.LineSegment(App.Vector(186, 0, 0), App.Vector(190, 0, 0)), False)
sketch3.addGeometry(Part.LineSegment(App.Vector(49, 0, 0), App.Vector(49, 10, 0)), False)
sketch3.addGeometry(Part.LineSegment(App.Vector(49, 10, 0), App.Vector(50.55, 10, 0)), False)
sketch3.addGeometry(Part.LineSegment(App.Vector(50.55, 10, 0), App.Vector(50.55, 15.5, 0)), False)
sketch3.addGeometry(Part.LineSegment(App.Vector(50.55, 15.5, 0), App.Vector(49, 15.5, 0)), False)
sketch3.addGeometry(Part.LineSegment(App.Vector(49, 15.5, 0), App.Vector(49, 21.5, 0)), False)
sketch3.addGeometry(Part.LineSegment(App.Vector(49, 21.5, 0), App.Vector(45, 21.5, 0)), False)
sketch3.addGeometry(Part.LineSegment(App.Vector(45, 21.5, 0), App.Vector(45, 15.5, 0)), False)
sketch3.addGeometry(Part.LineSegment(App.Vector(45, 15.5, 0), App.Vector(43.45, 15.5, 0)), False)
sketch3.addGeometry(Part.LineSegment(App.Vector(43.45, 15.5, 0), App.Vector(43.45, 10, 0)), False)
sketch3.addGeometry(Part.LineSegment(App.Vector(43.45, 10, 0), App.Vector(45, 10, 0)), False)
sketch3.addGeometry(Part.LineSegment(App.Vector(45, 10, 0), App.Vector(45, 0, 0)), False)
sketch3.addGeometry(Part.LineSegment(App.Vector(45, 0, 0), App.Vector(49, 0, 0)), False)
sketch3.addConstraint(Sketcher.Constraint("Coincident", 0, 2, 1, 1))
sketch3.addConstraint(Sketcher.Constraint("Coincident", 1, 2, 2, 1))
sketch3.addConstraint(Sketcher.Constraint("Coincident", 2, 2, 3, 1))
sketch3.addConstraint(Sketcher.Constraint("Coincident", 3, 2, 4, 1))
sketch3.addConstraint(Sketcher.Constraint("Coincident", 4, 2, 5, 1))
sketch3.addConstraint(Sketcher.Constraint("Coincident", 5, 2, 6, 1))
sketch3.addConstraint(Sketcher.Constraint("Coincident", 6, 2, 7, 1))
sketch3.addConstraint(Sketcher.Constraint("Coincident", 7, 2, 8, 1))
sketch3.addConstraint(Sketcher.Constraint("Coincident", 8, 2, 9, 1))
sketch3.addConstraint(Sketcher.Constraint("Coincident", 9, 2, 10, 1))
sketch3.addConstraint(Sketcher.Constraint("Coincident", 10, 2, 11, 1))
sketch3.addConstraint(Sketcher.Constraint("Coincident", 11, 2, 0, 1))
sketch3.addConstraint(Sketcher.Constraint("Coincident", 12, 2, 13, 1))
sketch3.addConstraint(Sketcher.Constraint("Coincident", 13, 2, 14, 1))
sketch3.addConstraint(Sketcher.Constraint("Coincident", 14, 2, 15, 1))
sketch3.addConstraint(Sketcher.Constraint("Coincident", 15, 2, 16, 1))
sketch3.addConstraint(Sketcher.Constraint("Coincident", 16, 2, 17, 1))
sketch3.addConstraint(Sketcher.Constraint("Coincident", 17, 2, 18, 1))
sketch3.addConstraint(Sketcher.Constraint("Coincident", 18, 2, 19, 1))
sketch3.addConstraint(Sketcher.Constraint("Coincident", 19, 2, 20, 1))
sketch3.addConstraint(Sketcher.Constraint("Coincident", 20, 2, 21, 1))
sketch3.addConstraint(Sketcher.Constraint("Coincident", 21, 2, 22, 1))
sketch3.addConstraint(Sketcher.Constraint("Coincident", 22, 2, 23, 1))
sketch3.addConstraint(Sketcher.Constraint("Coincident", 23, 2, 12, 1))
sketch3.addConstraint(Sketcher.Constraint("Coincident", 24, 2, 25, 1))
sketch3.addConstraint(Sketcher.Constraint("Coincident", 25, 2, 26, 1))
sketch3.addConstraint(Sketcher.Constraint("Coincident", 26, 2, 27, 1))
sketch3.addConstraint(Sketcher.Constraint("Coincident", 27, 2, 28, 1))
sketch3.addConstraint(Sketcher.Constraint("Coincident", 28, 2, 29, 1))
sketch3.addConstraint(Sketcher.Constraint("Coincident", 29, 2, 30, 1))
sketch3.addConstraint(Sketcher.Constraint("Coincident", 30, 2, 31, 1))
sketch3.addConstraint(Sketcher.Constraint("Coincident", 31, 2, 32, 1))
sketch3.addConstraint(Sketcher.Constraint("Coincident", 32, 2, 33, 1))
sketch3.addConstraint(Sketcher.Constraint("Coincident", 33, 2, 34, 1))
sketch3.addConstraint(Sketcher.Constraint("Coincident", 34, 2, 35, 1))
sketch3.addConstraint(Sketcher.Constraint("Coincident", 35, 2, 24, 1))
sketch3.addConstraint(Sketcher.Constraint("Coincident", 36, 2, 37, 1))
sketch3.addConstraint(Sketcher.Constraint("Coincident", 37, 2, 38, 1))
sketch3.addConstraint(Sketcher.Constraint("Coincident", 38, 2, 39, 1))
sketch3.addConstraint(Sketcher.Constraint("Coincident", 39, 2, 40, 1))
sketch3.addConstraint(Sketcher.Constraint("Coincident", 40, 2, 41, 1))
sketch3.addConstraint(Sketcher.Constraint("Coincident", 41, 2, 42, 1))
sketch3.addConstraint(Sketcher.Constraint("Coincident", 42, 2, 43, 1))
sketch3.addConstraint(Sketcher.Constraint("Coincident", 43, 2, 44, 1))
sketch3.addConstraint(Sketcher.Constraint("Coincident", 44, 2, 45, 1))
sketch3.addConstraint(Sketcher.Constraint("Coincident", 45, 2, 46, 1))
sketch3.addConstraint(Sketcher.Constraint("Coincident", 46, 2, 47, 1))
sketch3.addConstraint(Sketcher.Constraint("Coincident", 47, 2, 36, 1))
sketch3.addConstraint(Sketcher.Constraint("Vertical", 0))
sketch3.addConstraint(Sketcher.Constraint("Horizontal", 1))
sketch3.addConstraint(Sketcher.Constraint("Vertical", 2))
sketch3.addConstraint(Sketcher.Constraint("Horizontal", 3))
sketch3.addConstraint(Sketcher.Constraint("Vertical", 4))
sketch3.addConstraint(Sketcher.Constraint("Horizontal", 5))
sketch3.addConstraint(Sketcher.Constraint("Vertical", 6))
sketch3.addConstraint(Sketcher.Constraint("Horizontal", 7))
sketch3.addConstraint(Sketcher.Constraint("Vertical", 8))
sketch3.addConstraint(Sketcher.Constraint("Horizontal", 9))
sketch3.addConstraint(Sketcher.Constraint("Vertical", 10))
sketch3.addConstraint(Sketcher.Constraint("Horizontal", 11))
sketch3.addConstraint(Sketcher.Constraint("Vertical", 12))
sketch3.addConstraint(Sketcher.Constraint("Horizontal", 13))
sketch3.addConstraint(Sketcher.Constraint("Vertical", 14))
sketch3.addConstraint(Sketcher.Constraint("Horizontal", 15))
sketch3.addConstraint(Sketcher.Constraint("Vertical", 16))
sketch3.addConstraint(Sketcher.Constraint("Horizontal", 17))
sketch3.addConstraint(Sketcher.Constraint("Vertical", 18))
sketch3.addConstraint(Sketcher.Constraint("Horizontal", 19))
sketch3.addConstraint(Sketcher.Constraint("Vertical", 20))
sketch3.addConstraint(Sketcher.Constraint("Horizontal", 21))
sketch3.addConstraint(Sketcher.Constraint("Vertical", 22))
sketch3.addConstraint(Sketcher.Constraint("Horizontal", 23))
sketch3.addConstraint(Sketcher.Constraint("Vertical", 24))
sketch3.addConstraint(Sketcher.Constraint("Horizontal", 25))
sketch3.addConstraint(Sketcher.Constraint("Vertical", 26))
sketch3.addConstraint(Sketcher.Constraint("Horizontal", 27))
sketch3.addConstraint(Sketcher.Constraint("Vertical", 28))
sketch3.addConstraint(Sketcher.Constraint("Horizontal", 29))
sketch3.addConstraint(Sketcher.Constraint("Vertical", 30))
sketch3.addConstraint(Sketcher.Constraint("Horizontal", 31))
sketch3.addConstraint(Sketcher.Constraint("Vertical", 32))
sketch3.addConstraint(Sketcher.Constraint("Horizontal", 33))
sketch3.addConstraint(Sketcher.Constraint("Vertical", 34))
sketch3.addConstraint(Sketcher.Constraint("Horizontal", 35))
sketch3.addConstraint(Sketcher.Constraint("Vertical", 36))
sketch3.addConstraint(Sketcher.Constraint("Horizontal", 37))
sketch3.addConstraint(Sketcher.Constraint("Vertical", 38))
sketch3.addConstraint(Sketcher.Constraint("Horizontal", 39))
sketch3.addConstraint(Sketcher.Constraint("Vertical", 40))
sketch3.addConstraint(Sketcher.Constraint("Horizontal", 41))
sketch3.addConstraint(Sketcher.Constraint("Vertical", 42))
sketch3.addConstraint(Sketcher.Constraint("Horizontal", 43))
sketch3.addConstraint(Sketcher.Constraint("Vertical", 44))
sketch3.addConstraint(Sketcher.Constraint("Horizontal", 45))
sketch3.addConstraint(Sketcher.Constraint("Vertical", 46))
sketch3.addConstraint(Sketcher.Constraint("Horizontal", 47))
sketch3.addConstraint(Sketcher.Constraint("PointOnObject", 34, 2, -1))
sketch3.addConstraint(Sketcher.Constraint("PointOnObject", 46, 2, -1))
sketch3.addConstraint(Sketcher.Constraint("Horizontal", 3, 2, 6, 2))
sketch3.addConstraint(Sketcher.Constraint("Horizontal", 1, 2, 8, 2))
sketch3.addConstraint(Sketcher.Constraint("Horizontal", 9, 2, 12, 2))
sketch3.addConstraint(Sketcher.Constraint("Horizontal", 7, 2, 14, 2))
sketch3.addConstraint(Sketcher.Constraint("Horizontal", 5, 2, 16, 2))
sketch3.addConstraint(Sketcher.Constraint("Horizontal", 15, 2, 18, 2))
sketch3.addConstraint(Sketcher.Constraint("Horizontal", 13, 2, 20, 2))
sketch3.addConstraint(Sketcher.Constraint("Horizontal", 11, 2, 22, 2))
sketch3.addConstraint(Sketcher.Constraint("Horizontal", 27, 2, 30, 2))
sketch3.addConstraint(Sketcher.Constraint("Horizontal", 25, 2, 32, 2))
sketch3.addConstraint(Sketcher.Constraint("Horizontal", 33, 2, 36, 2))
sketch3.addConstraint(Sketcher.Constraint("Horizontal", 31, 2, 38, 2))
sketch3.addConstraint(Sketcher.Constraint("Horizontal", 29, 2, 40, 2))
sketch3.addConstraint(Sketcher.Constraint("Horizontal", 39, 2, 42, 2))
sketch3.addConstraint(Sketcher.Constraint("Horizontal", 37, 2, 44, 2))
sketch3.addConstraint(Sketcher.Constraint("Vertical", 0, 2, 3, 2))
sketch3.addConstraint(Sketcher.Constraint("Vertical", 6, 2, 9, 2))
sketch3.addConstraint(Sketcher.Constraint("Vertical", 12, 2, 15, 2))
sketch3.addConstraint(Sketcher.Constraint("Vertical", 18, 2, 21, 2))
sketch3.addConstraint(Sketcher.Constraint("Vertical", 22, 2, 24, 2))
sketch3.addConstraint(Sketcher.Constraint("Vertical", 20, 2, 25, 2))
sketch3.addConstraint(Sketcher.Constraint("Vertical", 24, 2, 27, 2))
sketch3.addConstraint(Sketcher.Constraint("Vertical", 23, 2, 29, 2))
sketch3.addConstraint(Sketcher.Constraint("Vertical", 14, 2, 31, 2))
sketch3.addConstraint(Sketcher.Constraint("Vertical", 30, 2, 33, 2))
sketch3.addConstraint(Sketcher.Constraint("Vertical", 10, 2, 36, 2))
sketch3.addConstraint(Sketcher.Constraint("Vertical", 8, 2, 37, 2))
sketch3.addConstraint(Sketcher.Constraint("Vertical", 36, 2, 39, 2))
sketch3.addConstraint(Sketcher.Constraint("Vertical", 11, 2, 41, 2))
sketch3.addConstraint(Sketcher.Constraint("Vertical", 2, 2, 43, 2))
sketch3.addConstraint(Sketcher.Constraint("Vertical", 42, 2, 45, 2))
sketch3.addConstraint(Sketcher.Constraint("Equal", 3, 7))
sketch3.addConstraint(Sketcher.Constraint("Equal", 9, 13))
sketch3.addConstraint(Sketcher.Constraint("Equal", 11, 17))
sketch3.addConstraint(Sketcher.Constraint("Equal", 15, 19))
sketch3.addConstraint(Sketcher.Constraint("Equal", 22, 24))
sketch3.addConstraint(Sketcher.Constraint("Equal", 20, 26))
sketch3.addConstraint(Sketcher.Constraint("Equal", 18, 28))
sketch3.addConstraint(Sketcher.Constraint("DistanceX", 5, 1, 5, 2, 4.0))
sketch3.addConstraint(Sketcher.Constraint("DistanceY", 0, 2, 0, 1, 10.0))
sketch3.addConstraint(Sketcher.Constraint("DistanceY", 4, 2, 4, 1, 6.0))
sketch3.addConstraint(Sketcher.Constraint("DistanceY", 2, 2, 2, 1, 5.5))
sketch3.addConstraint(Sketcher.Constraint("DistanceX", -1, 1, 0, 2, 45.0))
sketch3.addConstraint(Sketcher.Constraint("DistanceY", -1, 1, 0, 2, 150.0))
sketch3.addConstraint(Sketcher.Constraint("DistanceX", -1, 1, 12, 2, 186.0))
sketch3.addConstraint(Sketcher.Constraint("DistanceX", 1, 2, 1, 1, 1.55))
pocket2 = body.newObject("PartDesign::Pocket", "Pocket001")
pocket2.Profile = sketch3
pocket2.Length = 10

doc.recompute()
